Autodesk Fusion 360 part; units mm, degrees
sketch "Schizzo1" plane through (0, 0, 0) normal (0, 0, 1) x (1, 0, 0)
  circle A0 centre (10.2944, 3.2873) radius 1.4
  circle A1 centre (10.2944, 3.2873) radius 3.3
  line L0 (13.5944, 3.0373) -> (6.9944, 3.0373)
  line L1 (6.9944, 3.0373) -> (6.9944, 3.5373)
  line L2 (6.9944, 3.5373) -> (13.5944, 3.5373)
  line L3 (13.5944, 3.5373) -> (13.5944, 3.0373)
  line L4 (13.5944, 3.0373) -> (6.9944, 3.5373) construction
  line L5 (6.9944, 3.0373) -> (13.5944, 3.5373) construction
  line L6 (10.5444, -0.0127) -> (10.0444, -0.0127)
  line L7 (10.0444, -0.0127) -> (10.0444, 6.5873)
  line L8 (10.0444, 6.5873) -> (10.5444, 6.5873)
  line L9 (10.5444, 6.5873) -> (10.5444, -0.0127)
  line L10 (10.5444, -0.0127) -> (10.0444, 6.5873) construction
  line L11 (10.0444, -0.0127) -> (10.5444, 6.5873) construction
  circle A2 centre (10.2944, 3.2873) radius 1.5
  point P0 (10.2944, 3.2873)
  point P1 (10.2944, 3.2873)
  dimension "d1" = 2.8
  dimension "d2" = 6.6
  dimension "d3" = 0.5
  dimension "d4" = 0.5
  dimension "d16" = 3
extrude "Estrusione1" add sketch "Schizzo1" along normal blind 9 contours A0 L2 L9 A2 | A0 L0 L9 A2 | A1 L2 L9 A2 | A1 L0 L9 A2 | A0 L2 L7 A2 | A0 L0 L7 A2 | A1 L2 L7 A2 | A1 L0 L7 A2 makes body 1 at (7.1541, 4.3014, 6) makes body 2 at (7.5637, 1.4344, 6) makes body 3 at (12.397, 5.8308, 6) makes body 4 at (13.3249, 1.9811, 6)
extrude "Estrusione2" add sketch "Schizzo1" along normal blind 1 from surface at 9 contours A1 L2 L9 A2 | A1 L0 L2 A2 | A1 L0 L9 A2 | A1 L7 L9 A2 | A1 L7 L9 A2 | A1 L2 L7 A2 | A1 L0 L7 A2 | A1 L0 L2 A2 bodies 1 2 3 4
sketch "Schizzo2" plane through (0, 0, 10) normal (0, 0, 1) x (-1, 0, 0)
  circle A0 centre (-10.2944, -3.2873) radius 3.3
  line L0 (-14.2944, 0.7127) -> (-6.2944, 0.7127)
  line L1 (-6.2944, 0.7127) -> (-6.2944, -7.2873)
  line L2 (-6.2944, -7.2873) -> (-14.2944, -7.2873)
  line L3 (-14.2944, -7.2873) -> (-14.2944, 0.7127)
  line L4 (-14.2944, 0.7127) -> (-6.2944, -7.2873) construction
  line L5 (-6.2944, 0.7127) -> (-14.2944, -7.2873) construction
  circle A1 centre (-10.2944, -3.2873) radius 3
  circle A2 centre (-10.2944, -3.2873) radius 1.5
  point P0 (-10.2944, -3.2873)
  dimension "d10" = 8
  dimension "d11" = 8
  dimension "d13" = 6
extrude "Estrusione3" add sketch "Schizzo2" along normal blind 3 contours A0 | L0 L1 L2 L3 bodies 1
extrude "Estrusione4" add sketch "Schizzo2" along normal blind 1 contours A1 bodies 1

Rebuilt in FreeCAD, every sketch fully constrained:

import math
import FreeCAD as App
import Part
import Sketcher

V = App.Vector
Q = App.Units.Quantity

doc = App.newDocument("Part")
body = doc.addObject("PartDesign::Body", "Body")
body.AllowCompound = True

# Sketch on XY plane
sketch1 = doc.addObject("Sketcher::SketchObject", "Sketch")
body.addObject(sketch1)
sketch1.AttachmentSupport = (doc.XY_Plane, [""])
sketch1.MapMode = "FlatFace"
sketch1.addGeometry(Part.ArcOfCircle(Part.Circle(V(10.3, 3.3, 0), V(0, 0, 1), 1.4), math.radians(10), math.radians(80)), False)
sketch1.addGeometry(Part.LineSegment(V(11.7, 3.5, 0), V(13.6, 3.5, 0)), False)
sketch1.addGeometry(Part.ArcOfCircle(Part.Circle(V(10.3, 3.3, 0), V(0, 0, 1), 3.3), math.radians(4), math.radians(86)), False)
sketch1.addGeometry(Part.LineSegment(V(10.5, 6.6, 0), V(10.5, 4.7, 0)), False)
sketch1.addGeometry(Part.ArcOfCircle(Part.Circle(V(10.3, 3.3, 0), V(0, 0, 1), 1.4), math.radians(-80), math.radians(-10)), False)
sketch1.addGeometry(Part.LineSegment(V(10.5, 1.9, 0), V(10.5, 0, 0)), False)
sketch1.addGeometry(Part.ArcOfCircle(Part.Circle(V(10.3, 3.3, 0), V(0, 0, 1), 3.3), math.radians(-86), math.radians(-4)), False)
sketch1.addGeometry(Part.LineSegment(V(13.6, 3, 0), V(11.7, 3, 0)), False)
sketch1.addGeometry(Part.ArcOfCircle(Part.Circle(V(10.3, 3.3, 0), V(0, 0, 1), 1.4), math.radians(100), math.radians(170)), False)
sketch1.addGeometry(Part.LineSegment(V(10, 4.7, 0), V(10, 6.6, 0)), False)
sketch1.addGeometry(Part.ArcOfCircle(Part.Circle(V(10.3, 3.3, 0), V(0, 0, 1), 3.3), math.radians(94), math.radians(176)), False)
sketch1.addGeometry(Part.LineSegment(V(7, 3.5, 0), V(8.9, 3.5, 0)), False)
sketch1.addGeometry(Part.ArcOfCircle(Part.Circle(V(10.3, 3.3, 0), V(0, 0, 1), 1.4), math.radians(-170), math.radians(-100)), False)
sketch1.addGeometry(Part.LineSegment(V(8.9, 3, 0), V(7, 3, 0)), False)
sketch1.addGeometry(Part.ArcOfCircle(Part.Circle(V(10.3, 3.3, 0), V(0, 0, 1), 3.3), math.radians(-176), math.radians(-94)), False)
sketch1.addGeometry(Part.LineSegment(V(10, 0, 0), V(10, 1.9, 0)), False)
sketch1.addConstraint(Sketcher.Constraint("Coincident", 0, 1, 1, 1))
sketch1.addConstraint(Sketcher.Constraint("Coincident", 1, 2, 2, 1))
sketch1.addConstraint(Sketcher.Constraint("Coincident", 2, 2, 3, 1))
sketch1.addConstraint(Sketcher.Constraint("Coincident", 3, 2, 0, 2))
sketch1.addConstraint(Sketcher.Constraint("Coincident", 4, 1, 5, 1))
sketch1.addConstraint(Sketcher.Constraint("Coincident", 5, 2, 6, 1))
sketch1.addConstraint(Sketcher.Constraint("Coincident", 6, 2, 7, 1))
sketch1.addConstraint(Sketcher.Constraint("Coincident", 7, 2, 4, 2))
sketch1.addConstraint(Sketcher.Constraint("Coincident", 8, 1, 9, 1))
sketch1.addConstraint(Sketcher.Constraint("Coincident", 9, 2, 10, 1))
sketch1.addConstraint(Sketcher.Constraint("Coincident", 10, 2, 11, 1))
sketch1.addConstraint(Sketcher.Constraint("Coincident", 11, 2, 8, 2))
sketch1.addConstraint(Sketcher.Constraint("Coincident", 12, 1, 13, 1))
sketch1.addConstraint(Sketcher.Constraint("Coincident", 13, 2, 14, 1))
sketch1.addConstraint(Sketcher.Constraint("Coincident", 14, 2, 15, 1))
sketch1.addConstraint(Sketcher.Constraint("Coincident", 15, 2, 12, 2))
sketch1.addConstraint(Sketcher.Constraint("Horizontal", 1))
sketch1.addConstraint(Sketcher.Constraint("Vertical", 3))
sketch1.addConstraint(Sketcher.Constraint("Vertical", 5))
sketch1.addConstraint(Sketcher.Constraint("Horizontal", 7))
sketch1.addConstraint(Sketcher.Constraint("Vertical", 9))
sketch1.addConstraint(Sketcher.Constraint("Horizontal", 11))
sketch1.addConstraint(Sketcher.Constraint("Horizontal", 13))
sketch1.addConstraint(Sketcher.Constraint("Vertical", 15))
sketch1.addConstraint(Sketcher.Constraint("Coincident", 2, 3, 0, 3))
sketch1.addConstraint(Sketcher.Constraint("Coincident", 4, 3, 0, 3))
sketch1.addConstraint(Sketcher.Constraint("Coincident", 6, 3, 0, 3))
sketch1.addConstraint(Sketcher.Constraint("Coincident", 8, 3, 0, 3))
sketch1.addConstraint(Sketcher.Constraint("Coincident", 10, 3, 0, 3))
sketch1.addConstraint(Sketcher.Constraint("Coincident", 12, 3, 0, 3))
sketch1.addConstraint(Sketcher.Constraint("Coincident", 14, 3, 0, 3))
sketch1.addConstraint(Sketcher.Constraint("Equal", 0, 4))
sketch1.addConstraint(Sketcher.Constraint("Equal", 2, 6))
sketch1.addConstraint(Sketcher.Constraint("Equal", 4, 8))
sketch1.addConstraint(Sketcher.Constraint("Equal", 6, 10))
sketch1.addConstraint(Sketcher.Constraint("Equal", 8, 12))
sketch1.addConstraint(Sketcher.Constraint("Equal", 10, 14))
sketch1.addConstraint(Sketcher.Constraint("Horizontal", 3, 2, 8, 1))
sketch1.addConstraint(Sketcher.Constraint("Horizontal", 1, 2, 10, 2))
sketch1.addConstraint(Sketcher.Constraint("Horizontal", 7, 2, 12, 1))
sketch1.addConstraint(Sketcher.Constraint("Horizontal", 5, 2, 14, 2))
sketch1.addConstraint(Sketcher.Constraint("Vertical", 3, 2, 4, 1))
sketch1.addConstraint(Sketcher.Constraint("Vertical", 1, 2, 6, 2))
sketch1.addConstraint(Sketcher.Constraint("Equal", 13, 3))
sketch1.addConstraint(Sketcher.Constraint("Radius", 0, Q("1.4 mm")))
sketch1.addConstraint(Sketcher.Constraint("Radius", 2, Q("3.3 mm")))
sketch1.addConstraint(Sketcher.Constraint("DistanceY", 6, 2, 1, 2, Q("0.5 mm")))
sketch1.addConstraint(Sketcher.Constraint("DistanceX", -1, 1, 0, 1, Q("11.672 mm")))
sketch1.addConstraint(Sketcher.Constraint("DistanceY", -1, 1, 0, 3, Q("3.2873 mm")))
pad1 = doc.addObject("PartDesign::Pad", "Pad")
body.addObject(pad1)
pad1.Profile = sketch1
pad1.Length = 9

# Sketch on XY plane
sketch2 = doc.addObject("Sketcher::SketchObject", "Sketch001")
body.addObject(sketch2)
sketch2.AttachmentSupport = (doc.XY_Plane, [""])
sketch2.MapMode = "FlatFace"
sketch2.AttachmentOffset = App.Placement(V(0, 0, 9), App.Rotation())
sketch2.addGeometry(Part.Circle(V(10.3, 3.3, 0), V(0, 0, 1), 3.3), False)
sketch2.addGeometry(Part.Circle(V(10.3, 3.3, 0), V(0, 0, 1), 1.5), False)
sketch2.addConstraint(Sketcher.Constraint("Coincident", 1, 3, 0, 3))
sketch2.addConstraint(Sketcher.Constraint("Diameter", 1, Q("3 mm")))
sketch2.addConstraint(Sketcher.Constraint("Diameter", 0, Q("6.6 mm")))
sketch2.addConstraint(Sketcher.Constraint("DistanceX", -1, 1, 0, 3, Q("10.2944 mm")))
sketch2.addConstraint(Sketcher.Constraint("DistanceY", -1, 1, 0, 3, Q("3.2873 mm")))
pad2 = doc.addObject("PartDesign::Pad", "Pad001")
body.addObject(pad2)
pad2.Profile = sketch2
pad2.Length = 1

# Sketch on XY plane
sketch3 = doc.addObject("Sketcher::SketchObject", "Sketch002")
body.addObject(sketch3)
sketch3.AttachmentSupport = (doc.XY_Plane, [""])
sketch3.MapMode = "FlatFace"
sketch3.AttachmentOffset = App.Placement(V(0, 0, 10), App.Rotation())
sketch3.addGeometry(Part.LineSegment(V(6.3, -0.7, 0), V(14.3, -0.7, 0)), False)
sketch3.addGeometry(Part.LineSegment(V(14.3, -0.7, 0), V(14.3, 7.3, 0)), False)
sketch3.addGeometry(Part.LineSegment(V(14.3, 7.3, 0), V(6.3, 7.3, 0)), False)
sketch3.addGeometry(Part.LineSegment(V(6.3, 7.3, 0), V(6.3, -0.7, 0)), False)
sketch3.addGeometry(Part.Circle(V(10.3, 3.3, 0), V(0, 0, 1), 3), False)
sketch3.addConstraint(Sketcher.Constraint("Coincident", 0, 2, 1, 1))
sketch3.addConstraint(Sketcher.Constraint("Coincident", 1, 2, 2, 1))
sketch3.addConstraint(Sketcher.Constraint("Coincident", 2, 2, 3, 1))
sketch3.addConstraint(Sketcher.Constraint("Coincident", 3, 2, 0, 1))
sketch3.addConstraint(Sketcher.Constraint("Horizontal", 0))
sketch3.addConstraint(Sketcher.Constraint("Vertical", 1))
sketch3.addConstraint(Sketcher.Constraint("Horizontal", 2))
sketch3.addConstraint(Sketcher.Constraint("Vertical", 3))
sketch3.addConstraint(Sketcher.Constraint("Equal", 2, 1))
sketch3.addConstraint(Sketcher.Constraint("Diameter", 4, Q("6 mm")))
sketch3.addConstraint(Sketcher.Constraint("DistanceX", 0, 1, 0, 2, Q("8 mm")))
sketch3.addConstraint(Sketcher.Constraint("DistanceX", 4, 3, 0, 2, Q("4 mm")))
sketch3.addConstraint(Sketcher.Constraint("DistanceY", 0, 2, 4, 3, Q("4 mm")))
sketch3.addConstraint(Sketcher.Constraint("DistanceX", -1, 1, 4, 3, Q("10.2944 mm")))
sketch3.addConstraint(Sketcher.Constraint("DistanceY", -1, 1, 4, 3, Q("3.2873 mm")))
pad3 = doc.addObject("PartDesign::Pad", "Pad002")
body.addObject(pad3)
pad3.Profile = sketch3
pad3.Length = 3

# Sketch on XY plane
sketch4 = doc.addObject("Sketcher::SketchObject", "Sketch003")
body.addObject(sketch4)
sketch4.AttachmentSupport = (doc.XY_Plane, [""])
sketch4.MapMode = "FlatFace"
sketch4.AttachmentOffset = App.Placement(V(0, 0, 10), App.Rotation())
sketch4.addGeometry(Part.Circle(V(10.3, 3.3, 0), V(0, 0, 1), 3), False)
sketch4.addGeometry(Part.Circle(V(10.3, 3.3, 0), V(0, 0, 1), 1.5), False)
sketch4.addConstraint(Sketcher.Constraint("Coincident", 1, 3, 0, 3))
sketch4.addConstraint(Sketcher.Constraint("Diameter", 0, Q("6 mm")))
sketch4.addConstraint(Sketcher.Constraint("Diameter", 1, Q("3 mm")))
sketch4.addConstraint(Sketcher.Constraint("DistanceX", -1, 1, 0, 3, Q("10.2944 mm")))
sketch4.addConstraint(Sketcher.Constraint("DistanceY", -1, 1, 0, 3, Q("3.2873 mm")))
pad4 = doc.addObject("PartDesign::Pad", "Pad003")
body.addObject(pad4)
pad4.Profile = sketch4
pad4.Length = 1

doc.recompute()
